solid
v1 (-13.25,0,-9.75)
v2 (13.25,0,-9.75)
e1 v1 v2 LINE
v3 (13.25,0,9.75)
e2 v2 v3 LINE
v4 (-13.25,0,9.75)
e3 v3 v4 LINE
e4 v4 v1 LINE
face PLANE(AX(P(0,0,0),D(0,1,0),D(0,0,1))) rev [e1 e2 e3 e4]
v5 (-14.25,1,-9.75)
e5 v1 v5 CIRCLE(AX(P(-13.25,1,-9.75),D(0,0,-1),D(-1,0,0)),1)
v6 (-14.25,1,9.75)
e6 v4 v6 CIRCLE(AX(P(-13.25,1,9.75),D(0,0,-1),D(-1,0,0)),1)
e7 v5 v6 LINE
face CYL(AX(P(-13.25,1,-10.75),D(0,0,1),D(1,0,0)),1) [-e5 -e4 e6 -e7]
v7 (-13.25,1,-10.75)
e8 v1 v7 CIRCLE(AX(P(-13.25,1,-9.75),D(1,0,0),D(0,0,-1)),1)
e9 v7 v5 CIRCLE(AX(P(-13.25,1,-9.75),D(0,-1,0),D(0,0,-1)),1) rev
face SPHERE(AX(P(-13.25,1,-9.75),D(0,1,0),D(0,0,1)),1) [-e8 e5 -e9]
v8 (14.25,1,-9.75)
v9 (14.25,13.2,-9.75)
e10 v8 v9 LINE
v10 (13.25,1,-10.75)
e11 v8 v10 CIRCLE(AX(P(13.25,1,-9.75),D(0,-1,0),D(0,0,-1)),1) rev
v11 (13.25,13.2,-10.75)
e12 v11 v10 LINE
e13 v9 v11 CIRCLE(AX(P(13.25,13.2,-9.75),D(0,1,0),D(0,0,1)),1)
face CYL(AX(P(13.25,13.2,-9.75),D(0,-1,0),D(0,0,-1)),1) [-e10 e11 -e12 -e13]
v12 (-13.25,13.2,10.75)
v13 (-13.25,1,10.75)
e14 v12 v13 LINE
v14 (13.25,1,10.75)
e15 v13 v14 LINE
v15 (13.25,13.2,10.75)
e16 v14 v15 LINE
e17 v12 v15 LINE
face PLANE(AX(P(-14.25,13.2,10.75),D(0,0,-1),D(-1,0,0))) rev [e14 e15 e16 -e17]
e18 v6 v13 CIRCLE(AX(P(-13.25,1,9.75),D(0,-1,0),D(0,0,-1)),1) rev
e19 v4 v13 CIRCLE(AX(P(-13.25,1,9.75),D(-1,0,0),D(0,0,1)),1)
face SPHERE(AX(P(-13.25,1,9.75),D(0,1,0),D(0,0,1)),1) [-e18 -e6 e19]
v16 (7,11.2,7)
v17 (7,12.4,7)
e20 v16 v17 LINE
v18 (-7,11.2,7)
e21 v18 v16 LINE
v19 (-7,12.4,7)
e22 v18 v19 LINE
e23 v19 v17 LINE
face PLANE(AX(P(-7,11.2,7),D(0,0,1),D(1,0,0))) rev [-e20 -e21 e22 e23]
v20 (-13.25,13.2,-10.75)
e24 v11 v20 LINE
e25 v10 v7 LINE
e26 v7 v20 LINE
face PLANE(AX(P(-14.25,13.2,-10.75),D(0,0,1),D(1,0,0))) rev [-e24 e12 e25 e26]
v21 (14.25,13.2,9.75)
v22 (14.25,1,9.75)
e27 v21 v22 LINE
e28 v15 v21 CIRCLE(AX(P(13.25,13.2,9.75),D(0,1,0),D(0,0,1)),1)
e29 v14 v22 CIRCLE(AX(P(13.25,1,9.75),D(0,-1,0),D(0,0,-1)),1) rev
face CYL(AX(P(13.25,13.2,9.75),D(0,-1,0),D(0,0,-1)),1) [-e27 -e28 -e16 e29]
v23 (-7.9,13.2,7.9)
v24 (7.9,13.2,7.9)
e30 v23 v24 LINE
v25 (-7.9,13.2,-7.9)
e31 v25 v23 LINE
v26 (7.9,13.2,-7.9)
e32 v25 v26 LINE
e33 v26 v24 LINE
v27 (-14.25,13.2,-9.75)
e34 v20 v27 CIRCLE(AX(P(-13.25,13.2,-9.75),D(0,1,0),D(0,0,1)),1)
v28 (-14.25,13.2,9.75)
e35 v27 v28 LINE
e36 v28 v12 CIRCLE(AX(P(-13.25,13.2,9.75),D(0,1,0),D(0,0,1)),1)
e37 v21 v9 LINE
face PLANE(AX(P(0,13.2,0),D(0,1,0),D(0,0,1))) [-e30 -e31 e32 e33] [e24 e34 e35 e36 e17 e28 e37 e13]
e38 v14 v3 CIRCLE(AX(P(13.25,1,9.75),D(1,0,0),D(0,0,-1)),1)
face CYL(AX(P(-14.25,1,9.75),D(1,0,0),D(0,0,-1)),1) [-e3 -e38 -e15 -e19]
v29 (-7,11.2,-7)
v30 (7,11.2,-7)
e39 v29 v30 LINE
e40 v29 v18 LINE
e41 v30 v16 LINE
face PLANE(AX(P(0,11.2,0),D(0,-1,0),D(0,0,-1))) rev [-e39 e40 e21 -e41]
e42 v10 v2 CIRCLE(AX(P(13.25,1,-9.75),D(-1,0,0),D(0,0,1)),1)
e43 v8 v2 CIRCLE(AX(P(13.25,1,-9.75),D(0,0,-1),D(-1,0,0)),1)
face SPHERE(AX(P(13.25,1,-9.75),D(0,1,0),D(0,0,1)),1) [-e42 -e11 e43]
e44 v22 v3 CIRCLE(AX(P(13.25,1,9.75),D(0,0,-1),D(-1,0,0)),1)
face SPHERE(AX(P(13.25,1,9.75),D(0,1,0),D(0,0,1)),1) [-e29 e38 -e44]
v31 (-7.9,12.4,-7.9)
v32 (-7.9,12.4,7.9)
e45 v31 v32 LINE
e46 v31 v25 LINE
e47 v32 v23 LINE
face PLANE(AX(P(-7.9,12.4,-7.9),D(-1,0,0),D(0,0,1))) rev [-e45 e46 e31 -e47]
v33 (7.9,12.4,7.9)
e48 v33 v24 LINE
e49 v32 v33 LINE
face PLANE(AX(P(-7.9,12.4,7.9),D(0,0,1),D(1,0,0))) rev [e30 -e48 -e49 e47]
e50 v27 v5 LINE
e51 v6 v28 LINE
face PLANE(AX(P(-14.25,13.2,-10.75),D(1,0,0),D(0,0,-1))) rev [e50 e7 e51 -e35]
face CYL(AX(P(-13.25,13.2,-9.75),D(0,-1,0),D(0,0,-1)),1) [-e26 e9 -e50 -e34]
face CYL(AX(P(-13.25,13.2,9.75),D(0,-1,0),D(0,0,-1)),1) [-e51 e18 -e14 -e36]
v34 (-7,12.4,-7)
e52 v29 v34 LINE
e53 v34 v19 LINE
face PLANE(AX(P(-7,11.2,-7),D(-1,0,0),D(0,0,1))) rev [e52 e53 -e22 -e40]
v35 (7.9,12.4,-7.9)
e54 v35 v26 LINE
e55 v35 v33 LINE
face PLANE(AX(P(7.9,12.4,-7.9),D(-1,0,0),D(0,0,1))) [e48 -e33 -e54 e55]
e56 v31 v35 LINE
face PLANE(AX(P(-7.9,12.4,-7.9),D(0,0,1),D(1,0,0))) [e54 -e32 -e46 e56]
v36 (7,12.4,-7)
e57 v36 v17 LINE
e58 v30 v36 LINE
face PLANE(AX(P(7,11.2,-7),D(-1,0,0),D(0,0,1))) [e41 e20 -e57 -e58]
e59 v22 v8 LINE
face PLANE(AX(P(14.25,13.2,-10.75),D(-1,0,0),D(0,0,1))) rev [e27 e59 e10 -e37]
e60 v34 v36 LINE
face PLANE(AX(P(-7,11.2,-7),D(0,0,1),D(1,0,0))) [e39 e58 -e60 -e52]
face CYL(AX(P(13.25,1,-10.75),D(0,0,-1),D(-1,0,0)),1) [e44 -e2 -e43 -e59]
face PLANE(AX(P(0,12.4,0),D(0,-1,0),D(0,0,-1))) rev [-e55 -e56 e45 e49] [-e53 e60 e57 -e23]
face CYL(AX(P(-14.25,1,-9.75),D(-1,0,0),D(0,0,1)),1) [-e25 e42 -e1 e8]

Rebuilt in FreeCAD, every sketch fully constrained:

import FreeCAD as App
import Part
import Sketcher
from FreeCAD import Vector
Q = App.Units.Quantity


def edges_at(feature, points):
    """Names of the edges that pass closest to the given points."""
    edges = feature.Shape.Edges
    near = lambda p: min(range(len(edges)), key=lambda i: edges[i].distToShape(Part.Vertex(*p))[0])
    return sorted({f"Edge{near(p) + 1}" for p in points})

doc = App.newDocument("Part")
body = doc.addObject("PartDesign::Body", "Body")

sketch1 = doc.addObject("Sketcher::SketchObject", "Sketch")
body.addObject(sketch1)
sketch1.AttachmentSupport = (doc.XZ_Plane, [""])
sketch1.MapMode = "FlatFace"
sketch1.addGeometry([
    Part.LineSegment(Vector(-14, -11, 0), Vector(-14, 11, 0)),
    Part.LineSegment(Vector(-14, 11, 0), Vector(14, 11, 0)),
    Part.LineSegment(Vector(14, 11, 0), Vector(14, -11, 0)),
    Part.LineSegment(Vector(14, -11, 0), Vector(-14, -11, 0)),
], False)
sketch1.addConstraint([
    Sketcher.Constraint("Coincident", 0, 2, 1, 1),
    Sketcher.Constraint("Coincident", 1, 2, 2, 1),
    Sketcher.Constraint("Coincident", 2, 2, 3, 1),
    Sketcher.Constraint("Coincident", 3, 2, 0, 1),
    Sketcher.Constraint("Vertical", 0),
    Sketcher.Constraint("Horizontal", 1),
    Sketcher.Constraint("Vertical", 2),
    Sketcher.Constraint("Horizontal", 3),
    Sketcher.Constraint("Symmetric", 0, 2, 2, 2, -1, 1),
    Sketcher.Constraint("DistanceX", 1, 1, 1, 2, Q("28.5 mm")),
    Sketcher.Constraint("DistanceY", 0, 1, 0, 2, Q("21.5 mm")),
])
pad1 = doc.addObject("PartDesign::Pad", "Pad")
body.addObject(pad1)
pad1.Profile = sketch1
pad1.Length = 13.2
pad1.Reversed = True
doc.recompute()

fillet = doc.addObject("PartDesign::Fillet", "Fillet")
body.addObject(fillet)
fillet.Base = (pad1, edges_at(pad1, [
    (14.25, 6.6, 10.75),
    (-14.25, 6.6, 10.75),
    (-14.25, 6.6, -10.75),
    (14.25, 6.6, -10.75),
]))
fillet.Radius = 1

sketch2 = doc.addObject("Sketcher::SketchObject", "Sketch001")
body.addObject(sketch2)
sketch2.AttachmentSupport = (doc.XZ_Plane, [""])
sketch2.MapMode = "FlatFace"
sketch2.AttachmentOffset = App.Placement(Vector(0, 0, -13.2), App.Rotation())
sketch2.addGeometry([
    Part.LineSegment(Vector(-7, -7, 0), Vector(-7, 7, 0)),
    Part.LineSegment(Vector(-7, 7, 0), Vector(7, 7, 0)),
    Part.LineSegment(Vector(7, 7, 0), Vector(7, -7, 0)),
    Part.LineSegment(Vector(7, -7, 0), Vector(-7, -7, 0)),
], False)
sketch2.addConstraint([
    Sketcher.Constraint("Coincident", 0, 2, 1, 1),
    Sketcher.Constraint("Coincident", 1, 2, 2, 1),
    Sketcher.Constraint("Coincident", 2, 2, 3, 1),
    Sketcher.Constraint("Coincident", 3, 2, 0, 1),
    Sketcher.Constraint("Vertical", 0),
    Sketcher.Constraint("Horizontal", 1),
    Sketcher.Constraint("Vertical", 2),
    Sketcher.Constraint("Horizontal", 3),
    Sketcher.Constraint("Symmetric", 0, 2, 2, 2, -1, 1),
    Sketcher.Constraint("Equal", 3, 0),
    Sketcher.Constraint("DistanceX", 1, 1, 1, 2, Q("14 mm")),
])
pocket1 = doc.addObject("PartDesign::Pocket", "Pocket")
body.addObject(pocket1)
pocket1.Profile = sketch2
pocket1.Length = 2
pocket1.Reversed = True

sketch3 = doc.addObject("Sketcher::SketchObject", "Sketch002")
body.addObject(sketch3)
sketch3.AttachmentSupport = (doc.XZ_Plane, [""])
sketch3.MapMode = "FlatFace"
sketch3.AttachmentOffset = App.Placement(Vector(0, 0, -13.2), App.Rotation())
sketch3.addGeometry([
    Part.LineSegment(Vector(-8, -8, 0), Vector(-8, 8, 0)),
    Part.LineSegment(Vector(-8, 8, 0), Vector(8, 8, 0)),
    Part.LineSegment(Vector(8, 8, 0), Vector(8, -8, 0)),
    Part.LineSegment(Vector(8, -8, 0), Vector(-8, -8, 0)),
], False)
sketch3.addConstraint([
    Sketcher.Constraint("Coincident", 0, 2, 1, 1),
    Sketcher.Constraint("Coincident", 1, 2, 2, 1),
    Sketcher.Constraint("Coincident", 2, 2, 3, 1),
    Sketcher.Constraint("Coincident", 3, 2, 0, 1),
    Sketcher.Constraint("Vertical", 0),
    Sketcher.Constraint("Horizontal", 1),
    Sketcher.Constraint("Vertical", 2),
    Sketcher.Constraint("Horizontal", 3),
    Sketcher.Constraint("Symmetric", 0, 2, 2, 2, -1, 1),
    Sketcher.Constraint("Equal", 3, 0),
    Sketcher.Constraint("DistanceX", 1, 1, 1, 2, Q("15.8 mm")),
])
pocket2 = doc.addObject("PartDesign::Pocket", "Pocket001")
body.addObject(pocket2)
pocket2.Profile = sketch3
pocket2.Length = 0.8
pocket2.Reversed = True
doc.recompute()

fillet2 = doc.addObject("PartDesign::Fillet", "Fillet001")
body.addObject(fillet2)
fillet2.Base = (pocket2, edges_at(pocket2, [
    (14.25, 0, 0),
    (0, 0, 10.75),
    (-14.25, 0, 0),
    (0, 0, -10.75),
    (13.957, 0, -10.457),
    (-13.957, 0, -10.457),
    (-13.957, 0, 10.457),
    (13.957, 0, 10.457),
]))
fillet2.Radius = 1

doc.recompute()
